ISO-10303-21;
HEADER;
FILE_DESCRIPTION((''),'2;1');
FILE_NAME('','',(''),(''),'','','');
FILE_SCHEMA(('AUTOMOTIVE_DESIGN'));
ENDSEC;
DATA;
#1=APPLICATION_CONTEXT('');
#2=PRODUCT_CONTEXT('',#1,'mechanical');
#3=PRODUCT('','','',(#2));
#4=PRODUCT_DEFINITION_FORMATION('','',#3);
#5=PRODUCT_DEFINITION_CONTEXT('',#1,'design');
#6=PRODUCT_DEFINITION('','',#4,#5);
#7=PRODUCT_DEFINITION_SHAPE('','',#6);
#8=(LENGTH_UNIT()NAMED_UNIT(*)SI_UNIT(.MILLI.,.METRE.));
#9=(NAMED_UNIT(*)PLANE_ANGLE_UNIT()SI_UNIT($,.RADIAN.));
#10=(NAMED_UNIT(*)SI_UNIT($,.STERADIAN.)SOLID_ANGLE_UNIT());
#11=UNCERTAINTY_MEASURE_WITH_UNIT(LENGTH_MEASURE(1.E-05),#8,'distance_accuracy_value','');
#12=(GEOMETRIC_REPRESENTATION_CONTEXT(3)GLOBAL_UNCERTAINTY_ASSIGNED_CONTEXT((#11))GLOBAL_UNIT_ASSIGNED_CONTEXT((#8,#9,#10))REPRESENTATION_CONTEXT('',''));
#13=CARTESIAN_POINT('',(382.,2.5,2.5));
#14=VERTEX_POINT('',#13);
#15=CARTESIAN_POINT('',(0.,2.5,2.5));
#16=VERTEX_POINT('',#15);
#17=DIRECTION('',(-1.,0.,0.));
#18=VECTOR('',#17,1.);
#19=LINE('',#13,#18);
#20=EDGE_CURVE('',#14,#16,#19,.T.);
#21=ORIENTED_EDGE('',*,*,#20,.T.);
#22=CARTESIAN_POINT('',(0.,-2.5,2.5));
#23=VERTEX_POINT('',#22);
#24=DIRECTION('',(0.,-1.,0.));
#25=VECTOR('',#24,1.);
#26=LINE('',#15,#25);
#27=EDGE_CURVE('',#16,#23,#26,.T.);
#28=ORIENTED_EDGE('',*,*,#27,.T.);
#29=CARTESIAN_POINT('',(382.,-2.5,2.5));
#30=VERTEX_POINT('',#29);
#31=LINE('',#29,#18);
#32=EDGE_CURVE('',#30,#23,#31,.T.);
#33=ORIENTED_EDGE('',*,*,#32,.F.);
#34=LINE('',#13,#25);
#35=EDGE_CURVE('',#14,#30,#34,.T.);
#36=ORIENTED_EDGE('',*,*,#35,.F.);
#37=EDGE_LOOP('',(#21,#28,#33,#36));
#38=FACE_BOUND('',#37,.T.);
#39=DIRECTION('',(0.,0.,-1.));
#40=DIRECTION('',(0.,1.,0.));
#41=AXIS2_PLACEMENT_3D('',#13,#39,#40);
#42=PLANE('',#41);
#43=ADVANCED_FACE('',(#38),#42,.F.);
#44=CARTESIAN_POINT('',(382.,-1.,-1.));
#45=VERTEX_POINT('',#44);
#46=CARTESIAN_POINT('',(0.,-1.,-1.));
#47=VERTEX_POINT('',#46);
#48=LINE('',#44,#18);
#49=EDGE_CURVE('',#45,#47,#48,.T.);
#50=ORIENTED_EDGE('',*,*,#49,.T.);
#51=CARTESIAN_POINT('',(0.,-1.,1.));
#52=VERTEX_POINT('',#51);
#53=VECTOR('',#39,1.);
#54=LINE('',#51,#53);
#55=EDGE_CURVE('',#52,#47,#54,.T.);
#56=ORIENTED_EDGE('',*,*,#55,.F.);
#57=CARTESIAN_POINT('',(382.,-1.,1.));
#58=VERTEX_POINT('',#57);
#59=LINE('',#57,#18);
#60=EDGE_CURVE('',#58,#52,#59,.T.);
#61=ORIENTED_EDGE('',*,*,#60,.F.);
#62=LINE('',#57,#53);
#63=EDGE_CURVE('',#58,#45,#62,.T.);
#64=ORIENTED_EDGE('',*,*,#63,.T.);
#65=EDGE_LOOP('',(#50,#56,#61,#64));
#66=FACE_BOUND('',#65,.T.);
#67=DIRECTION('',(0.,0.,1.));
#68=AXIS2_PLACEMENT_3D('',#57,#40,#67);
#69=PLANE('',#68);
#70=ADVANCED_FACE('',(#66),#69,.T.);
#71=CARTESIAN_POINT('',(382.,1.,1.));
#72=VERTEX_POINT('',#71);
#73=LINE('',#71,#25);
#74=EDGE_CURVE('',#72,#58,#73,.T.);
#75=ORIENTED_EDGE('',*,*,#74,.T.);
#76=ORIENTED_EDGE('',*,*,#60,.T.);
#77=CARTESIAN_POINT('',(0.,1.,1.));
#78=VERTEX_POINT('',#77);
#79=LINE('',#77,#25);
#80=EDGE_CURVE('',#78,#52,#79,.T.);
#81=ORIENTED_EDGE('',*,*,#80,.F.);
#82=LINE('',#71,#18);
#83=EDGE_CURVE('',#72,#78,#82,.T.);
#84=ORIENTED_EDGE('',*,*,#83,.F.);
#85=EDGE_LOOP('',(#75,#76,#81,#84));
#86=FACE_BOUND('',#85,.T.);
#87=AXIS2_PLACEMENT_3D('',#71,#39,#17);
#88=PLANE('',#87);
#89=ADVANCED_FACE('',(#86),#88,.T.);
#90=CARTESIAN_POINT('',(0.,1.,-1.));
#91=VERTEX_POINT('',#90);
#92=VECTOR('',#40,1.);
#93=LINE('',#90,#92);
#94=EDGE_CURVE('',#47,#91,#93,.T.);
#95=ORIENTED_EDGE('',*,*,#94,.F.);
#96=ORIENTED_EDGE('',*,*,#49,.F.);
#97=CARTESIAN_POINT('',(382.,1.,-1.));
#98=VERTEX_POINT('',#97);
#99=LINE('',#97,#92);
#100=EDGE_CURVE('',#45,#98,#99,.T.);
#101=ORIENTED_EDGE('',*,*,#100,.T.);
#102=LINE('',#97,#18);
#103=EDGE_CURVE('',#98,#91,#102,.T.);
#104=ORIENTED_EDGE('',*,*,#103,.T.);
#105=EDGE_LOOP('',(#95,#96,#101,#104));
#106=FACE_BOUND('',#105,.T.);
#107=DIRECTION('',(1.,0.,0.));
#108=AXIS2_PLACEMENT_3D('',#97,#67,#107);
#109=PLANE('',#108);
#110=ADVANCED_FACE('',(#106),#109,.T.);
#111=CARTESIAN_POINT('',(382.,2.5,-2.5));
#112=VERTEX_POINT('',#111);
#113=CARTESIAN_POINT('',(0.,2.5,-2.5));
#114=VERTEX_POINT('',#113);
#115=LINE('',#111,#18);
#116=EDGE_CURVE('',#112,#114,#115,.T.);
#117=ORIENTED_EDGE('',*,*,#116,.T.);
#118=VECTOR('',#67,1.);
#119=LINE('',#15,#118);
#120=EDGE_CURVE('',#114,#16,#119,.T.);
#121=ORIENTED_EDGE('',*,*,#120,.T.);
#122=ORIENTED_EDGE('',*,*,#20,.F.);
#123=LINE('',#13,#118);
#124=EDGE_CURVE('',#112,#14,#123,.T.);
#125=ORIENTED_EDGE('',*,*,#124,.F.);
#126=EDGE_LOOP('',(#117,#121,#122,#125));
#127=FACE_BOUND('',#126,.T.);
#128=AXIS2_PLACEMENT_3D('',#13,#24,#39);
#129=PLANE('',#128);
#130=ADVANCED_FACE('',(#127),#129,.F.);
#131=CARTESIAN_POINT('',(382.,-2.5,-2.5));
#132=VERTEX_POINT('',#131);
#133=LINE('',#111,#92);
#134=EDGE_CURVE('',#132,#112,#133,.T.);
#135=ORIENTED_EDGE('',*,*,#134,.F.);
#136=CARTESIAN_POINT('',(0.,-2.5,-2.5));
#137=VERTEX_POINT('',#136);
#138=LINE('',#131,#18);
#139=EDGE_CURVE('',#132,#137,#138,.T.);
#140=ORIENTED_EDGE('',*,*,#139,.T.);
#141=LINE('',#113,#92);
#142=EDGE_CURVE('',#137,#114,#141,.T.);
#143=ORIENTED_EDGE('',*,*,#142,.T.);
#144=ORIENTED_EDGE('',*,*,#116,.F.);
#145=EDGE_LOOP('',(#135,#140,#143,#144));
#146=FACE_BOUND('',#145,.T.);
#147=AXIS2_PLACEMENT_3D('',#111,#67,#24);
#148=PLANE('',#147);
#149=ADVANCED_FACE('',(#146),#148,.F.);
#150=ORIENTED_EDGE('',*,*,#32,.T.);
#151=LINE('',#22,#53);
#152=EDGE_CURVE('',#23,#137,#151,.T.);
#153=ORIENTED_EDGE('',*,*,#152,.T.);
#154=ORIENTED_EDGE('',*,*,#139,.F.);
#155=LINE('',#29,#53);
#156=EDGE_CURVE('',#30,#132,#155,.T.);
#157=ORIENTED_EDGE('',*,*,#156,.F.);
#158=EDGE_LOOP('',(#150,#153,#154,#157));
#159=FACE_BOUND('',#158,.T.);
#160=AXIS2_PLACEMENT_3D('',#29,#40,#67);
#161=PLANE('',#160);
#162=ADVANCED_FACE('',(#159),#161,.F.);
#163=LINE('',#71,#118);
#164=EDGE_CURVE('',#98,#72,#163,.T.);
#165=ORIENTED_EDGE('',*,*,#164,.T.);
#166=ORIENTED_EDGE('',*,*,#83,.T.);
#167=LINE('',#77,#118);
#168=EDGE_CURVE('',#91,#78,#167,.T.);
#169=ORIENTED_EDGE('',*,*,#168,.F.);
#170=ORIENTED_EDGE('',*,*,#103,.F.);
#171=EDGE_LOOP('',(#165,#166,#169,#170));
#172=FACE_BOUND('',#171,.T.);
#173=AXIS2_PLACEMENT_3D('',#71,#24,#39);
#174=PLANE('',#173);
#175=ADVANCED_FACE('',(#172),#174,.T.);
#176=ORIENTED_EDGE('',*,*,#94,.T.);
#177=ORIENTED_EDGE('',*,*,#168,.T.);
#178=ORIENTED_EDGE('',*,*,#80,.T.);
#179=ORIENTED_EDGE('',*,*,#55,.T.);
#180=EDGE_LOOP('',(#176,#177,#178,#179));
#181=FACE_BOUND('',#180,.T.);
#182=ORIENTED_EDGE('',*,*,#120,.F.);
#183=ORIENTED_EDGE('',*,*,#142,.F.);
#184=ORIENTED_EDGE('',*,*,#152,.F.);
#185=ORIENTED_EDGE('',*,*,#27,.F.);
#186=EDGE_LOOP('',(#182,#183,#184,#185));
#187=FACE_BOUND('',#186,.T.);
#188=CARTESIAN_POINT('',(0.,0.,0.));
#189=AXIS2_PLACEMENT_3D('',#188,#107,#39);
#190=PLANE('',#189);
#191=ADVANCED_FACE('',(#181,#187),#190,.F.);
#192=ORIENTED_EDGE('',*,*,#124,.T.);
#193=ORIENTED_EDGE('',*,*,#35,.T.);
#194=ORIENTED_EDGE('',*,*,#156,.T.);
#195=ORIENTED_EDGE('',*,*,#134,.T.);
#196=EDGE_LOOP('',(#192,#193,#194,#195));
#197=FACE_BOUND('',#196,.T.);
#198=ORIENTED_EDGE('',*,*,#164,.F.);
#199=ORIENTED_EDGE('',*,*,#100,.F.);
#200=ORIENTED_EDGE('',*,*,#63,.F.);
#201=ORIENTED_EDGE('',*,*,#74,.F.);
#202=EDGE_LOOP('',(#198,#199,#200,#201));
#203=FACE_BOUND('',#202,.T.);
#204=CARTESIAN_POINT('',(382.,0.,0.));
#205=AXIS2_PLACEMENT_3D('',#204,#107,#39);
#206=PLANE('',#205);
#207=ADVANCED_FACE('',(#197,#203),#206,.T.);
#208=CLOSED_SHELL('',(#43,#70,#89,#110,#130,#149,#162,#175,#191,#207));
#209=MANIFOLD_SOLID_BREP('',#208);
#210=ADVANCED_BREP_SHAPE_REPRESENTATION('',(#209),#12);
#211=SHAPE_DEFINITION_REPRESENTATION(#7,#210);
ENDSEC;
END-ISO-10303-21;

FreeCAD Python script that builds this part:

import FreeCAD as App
import Part
import Sketcher
from FreeCAD import Vector
Q = App.Units.Quantity


def add_polygon(sketch, points):
    """Adds a closed chain of lines whose ends are joined by coincident constraints."""
    first, n = sketch.GeometryCount, len(points)
    for a, b in zip(points, points[1:] + points[:1]):
        sketch.addGeometry(Part.LineSegment(App.Vector(*a, 0), App.Vector(*b, 0)), False)
    for i in range(n):
        sketch.addConstraint(Sketcher.Constraint("Coincident", first + i, 2, first + (i + 1) % n, 1))

doc = App.newDocument("Part")
params = doc.addObject("Spreadsheet::Sheet", "Params")
for row, (alias, value) in enumerate([
    ("sketch1_width", "5 mm"),
    ("sketch1_width2", "2 mm"),
    ("pad1_length", "382 mm"),
], start=1):
    params.set(f"A{row}", alias)
    params.set(f"B{row}", "=" + value)
    params.setAlias(f"B{row}", alias)

body = doc.addObject("PartDesign::Body", "Body")

# Sketch on YZ plane
sketch1 = body.newObject("Sketcher::SketchObject", "Sketch")
sketch1.AttachmentSupport = (doc.getObject("YZ_Plane"), [""])
sketch1.MapMode = "FlatFace"
add_polygon(sketch1, [(2.5, 2.5), (-2.5, 2.5), (-2.5, -2.5), (2.5, -2.5)])  # lines 0-3
add_polygon(sketch1, [(-1, -1), (-1, 1), (1, 1), (1, -1)])  # lines 4-7
sketch1.addConstraint(Sketcher.Constraint("Horizontal", 0))
sketch1.addConstraint(Sketcher.Constraint("Vertical", 1))
sketch1.addConstraint(Sketcher.Constraint("Horizontal", 2))
sketch1.addConstraint(Sketcher.Constraint("Vertical", 3))
sketch1.addConstraint(Sketcher.Constraint("Vertical", 4))
sketch1.addConstraint(Sketcher.Constraint("Horizontal", 5))
sketch1.addConstraint(Sketcher.Constraint("Vertical", 6))
sketch1.addConstraint(Sketcher.Constraint("Horizontal", 7))
sketch1.addConstraint(Sketcher.Constraint("Symmetric", 0, 2, 2, 2, -1, 1))
sketch1.addConstraint(Sketcher.Constraint("Symmetric", 4, 2, 6, 2, -1, 1))
sketch1.addConstraint(Sketcher.Constraint("Equal", 2, 1))
sketch1.addConstraint(Sketcher.Constraint("Equal", 7, 4))
sketch1.addConstraint(Sketcher.Constraint("DistanceX", 0, 2, 0, 1, Q("5 mm")))
sketch1.addConstraint(Sketcher.Constraint("DistanceX", 5, 1, 5, 2, Q("2 mm")))
sketch1.setExpression("Constraints[20]", "Params.sketch1_width")
sketch1.setExpression("Constraints[21]", "Params.sketch1_width2")
pad1 = body.newObject("PartDesign::Pad", "Pad")
pad1.Profile = sketch1
pad1.setExpression("Length", "Params.pad1_length")

doc.recompute()
